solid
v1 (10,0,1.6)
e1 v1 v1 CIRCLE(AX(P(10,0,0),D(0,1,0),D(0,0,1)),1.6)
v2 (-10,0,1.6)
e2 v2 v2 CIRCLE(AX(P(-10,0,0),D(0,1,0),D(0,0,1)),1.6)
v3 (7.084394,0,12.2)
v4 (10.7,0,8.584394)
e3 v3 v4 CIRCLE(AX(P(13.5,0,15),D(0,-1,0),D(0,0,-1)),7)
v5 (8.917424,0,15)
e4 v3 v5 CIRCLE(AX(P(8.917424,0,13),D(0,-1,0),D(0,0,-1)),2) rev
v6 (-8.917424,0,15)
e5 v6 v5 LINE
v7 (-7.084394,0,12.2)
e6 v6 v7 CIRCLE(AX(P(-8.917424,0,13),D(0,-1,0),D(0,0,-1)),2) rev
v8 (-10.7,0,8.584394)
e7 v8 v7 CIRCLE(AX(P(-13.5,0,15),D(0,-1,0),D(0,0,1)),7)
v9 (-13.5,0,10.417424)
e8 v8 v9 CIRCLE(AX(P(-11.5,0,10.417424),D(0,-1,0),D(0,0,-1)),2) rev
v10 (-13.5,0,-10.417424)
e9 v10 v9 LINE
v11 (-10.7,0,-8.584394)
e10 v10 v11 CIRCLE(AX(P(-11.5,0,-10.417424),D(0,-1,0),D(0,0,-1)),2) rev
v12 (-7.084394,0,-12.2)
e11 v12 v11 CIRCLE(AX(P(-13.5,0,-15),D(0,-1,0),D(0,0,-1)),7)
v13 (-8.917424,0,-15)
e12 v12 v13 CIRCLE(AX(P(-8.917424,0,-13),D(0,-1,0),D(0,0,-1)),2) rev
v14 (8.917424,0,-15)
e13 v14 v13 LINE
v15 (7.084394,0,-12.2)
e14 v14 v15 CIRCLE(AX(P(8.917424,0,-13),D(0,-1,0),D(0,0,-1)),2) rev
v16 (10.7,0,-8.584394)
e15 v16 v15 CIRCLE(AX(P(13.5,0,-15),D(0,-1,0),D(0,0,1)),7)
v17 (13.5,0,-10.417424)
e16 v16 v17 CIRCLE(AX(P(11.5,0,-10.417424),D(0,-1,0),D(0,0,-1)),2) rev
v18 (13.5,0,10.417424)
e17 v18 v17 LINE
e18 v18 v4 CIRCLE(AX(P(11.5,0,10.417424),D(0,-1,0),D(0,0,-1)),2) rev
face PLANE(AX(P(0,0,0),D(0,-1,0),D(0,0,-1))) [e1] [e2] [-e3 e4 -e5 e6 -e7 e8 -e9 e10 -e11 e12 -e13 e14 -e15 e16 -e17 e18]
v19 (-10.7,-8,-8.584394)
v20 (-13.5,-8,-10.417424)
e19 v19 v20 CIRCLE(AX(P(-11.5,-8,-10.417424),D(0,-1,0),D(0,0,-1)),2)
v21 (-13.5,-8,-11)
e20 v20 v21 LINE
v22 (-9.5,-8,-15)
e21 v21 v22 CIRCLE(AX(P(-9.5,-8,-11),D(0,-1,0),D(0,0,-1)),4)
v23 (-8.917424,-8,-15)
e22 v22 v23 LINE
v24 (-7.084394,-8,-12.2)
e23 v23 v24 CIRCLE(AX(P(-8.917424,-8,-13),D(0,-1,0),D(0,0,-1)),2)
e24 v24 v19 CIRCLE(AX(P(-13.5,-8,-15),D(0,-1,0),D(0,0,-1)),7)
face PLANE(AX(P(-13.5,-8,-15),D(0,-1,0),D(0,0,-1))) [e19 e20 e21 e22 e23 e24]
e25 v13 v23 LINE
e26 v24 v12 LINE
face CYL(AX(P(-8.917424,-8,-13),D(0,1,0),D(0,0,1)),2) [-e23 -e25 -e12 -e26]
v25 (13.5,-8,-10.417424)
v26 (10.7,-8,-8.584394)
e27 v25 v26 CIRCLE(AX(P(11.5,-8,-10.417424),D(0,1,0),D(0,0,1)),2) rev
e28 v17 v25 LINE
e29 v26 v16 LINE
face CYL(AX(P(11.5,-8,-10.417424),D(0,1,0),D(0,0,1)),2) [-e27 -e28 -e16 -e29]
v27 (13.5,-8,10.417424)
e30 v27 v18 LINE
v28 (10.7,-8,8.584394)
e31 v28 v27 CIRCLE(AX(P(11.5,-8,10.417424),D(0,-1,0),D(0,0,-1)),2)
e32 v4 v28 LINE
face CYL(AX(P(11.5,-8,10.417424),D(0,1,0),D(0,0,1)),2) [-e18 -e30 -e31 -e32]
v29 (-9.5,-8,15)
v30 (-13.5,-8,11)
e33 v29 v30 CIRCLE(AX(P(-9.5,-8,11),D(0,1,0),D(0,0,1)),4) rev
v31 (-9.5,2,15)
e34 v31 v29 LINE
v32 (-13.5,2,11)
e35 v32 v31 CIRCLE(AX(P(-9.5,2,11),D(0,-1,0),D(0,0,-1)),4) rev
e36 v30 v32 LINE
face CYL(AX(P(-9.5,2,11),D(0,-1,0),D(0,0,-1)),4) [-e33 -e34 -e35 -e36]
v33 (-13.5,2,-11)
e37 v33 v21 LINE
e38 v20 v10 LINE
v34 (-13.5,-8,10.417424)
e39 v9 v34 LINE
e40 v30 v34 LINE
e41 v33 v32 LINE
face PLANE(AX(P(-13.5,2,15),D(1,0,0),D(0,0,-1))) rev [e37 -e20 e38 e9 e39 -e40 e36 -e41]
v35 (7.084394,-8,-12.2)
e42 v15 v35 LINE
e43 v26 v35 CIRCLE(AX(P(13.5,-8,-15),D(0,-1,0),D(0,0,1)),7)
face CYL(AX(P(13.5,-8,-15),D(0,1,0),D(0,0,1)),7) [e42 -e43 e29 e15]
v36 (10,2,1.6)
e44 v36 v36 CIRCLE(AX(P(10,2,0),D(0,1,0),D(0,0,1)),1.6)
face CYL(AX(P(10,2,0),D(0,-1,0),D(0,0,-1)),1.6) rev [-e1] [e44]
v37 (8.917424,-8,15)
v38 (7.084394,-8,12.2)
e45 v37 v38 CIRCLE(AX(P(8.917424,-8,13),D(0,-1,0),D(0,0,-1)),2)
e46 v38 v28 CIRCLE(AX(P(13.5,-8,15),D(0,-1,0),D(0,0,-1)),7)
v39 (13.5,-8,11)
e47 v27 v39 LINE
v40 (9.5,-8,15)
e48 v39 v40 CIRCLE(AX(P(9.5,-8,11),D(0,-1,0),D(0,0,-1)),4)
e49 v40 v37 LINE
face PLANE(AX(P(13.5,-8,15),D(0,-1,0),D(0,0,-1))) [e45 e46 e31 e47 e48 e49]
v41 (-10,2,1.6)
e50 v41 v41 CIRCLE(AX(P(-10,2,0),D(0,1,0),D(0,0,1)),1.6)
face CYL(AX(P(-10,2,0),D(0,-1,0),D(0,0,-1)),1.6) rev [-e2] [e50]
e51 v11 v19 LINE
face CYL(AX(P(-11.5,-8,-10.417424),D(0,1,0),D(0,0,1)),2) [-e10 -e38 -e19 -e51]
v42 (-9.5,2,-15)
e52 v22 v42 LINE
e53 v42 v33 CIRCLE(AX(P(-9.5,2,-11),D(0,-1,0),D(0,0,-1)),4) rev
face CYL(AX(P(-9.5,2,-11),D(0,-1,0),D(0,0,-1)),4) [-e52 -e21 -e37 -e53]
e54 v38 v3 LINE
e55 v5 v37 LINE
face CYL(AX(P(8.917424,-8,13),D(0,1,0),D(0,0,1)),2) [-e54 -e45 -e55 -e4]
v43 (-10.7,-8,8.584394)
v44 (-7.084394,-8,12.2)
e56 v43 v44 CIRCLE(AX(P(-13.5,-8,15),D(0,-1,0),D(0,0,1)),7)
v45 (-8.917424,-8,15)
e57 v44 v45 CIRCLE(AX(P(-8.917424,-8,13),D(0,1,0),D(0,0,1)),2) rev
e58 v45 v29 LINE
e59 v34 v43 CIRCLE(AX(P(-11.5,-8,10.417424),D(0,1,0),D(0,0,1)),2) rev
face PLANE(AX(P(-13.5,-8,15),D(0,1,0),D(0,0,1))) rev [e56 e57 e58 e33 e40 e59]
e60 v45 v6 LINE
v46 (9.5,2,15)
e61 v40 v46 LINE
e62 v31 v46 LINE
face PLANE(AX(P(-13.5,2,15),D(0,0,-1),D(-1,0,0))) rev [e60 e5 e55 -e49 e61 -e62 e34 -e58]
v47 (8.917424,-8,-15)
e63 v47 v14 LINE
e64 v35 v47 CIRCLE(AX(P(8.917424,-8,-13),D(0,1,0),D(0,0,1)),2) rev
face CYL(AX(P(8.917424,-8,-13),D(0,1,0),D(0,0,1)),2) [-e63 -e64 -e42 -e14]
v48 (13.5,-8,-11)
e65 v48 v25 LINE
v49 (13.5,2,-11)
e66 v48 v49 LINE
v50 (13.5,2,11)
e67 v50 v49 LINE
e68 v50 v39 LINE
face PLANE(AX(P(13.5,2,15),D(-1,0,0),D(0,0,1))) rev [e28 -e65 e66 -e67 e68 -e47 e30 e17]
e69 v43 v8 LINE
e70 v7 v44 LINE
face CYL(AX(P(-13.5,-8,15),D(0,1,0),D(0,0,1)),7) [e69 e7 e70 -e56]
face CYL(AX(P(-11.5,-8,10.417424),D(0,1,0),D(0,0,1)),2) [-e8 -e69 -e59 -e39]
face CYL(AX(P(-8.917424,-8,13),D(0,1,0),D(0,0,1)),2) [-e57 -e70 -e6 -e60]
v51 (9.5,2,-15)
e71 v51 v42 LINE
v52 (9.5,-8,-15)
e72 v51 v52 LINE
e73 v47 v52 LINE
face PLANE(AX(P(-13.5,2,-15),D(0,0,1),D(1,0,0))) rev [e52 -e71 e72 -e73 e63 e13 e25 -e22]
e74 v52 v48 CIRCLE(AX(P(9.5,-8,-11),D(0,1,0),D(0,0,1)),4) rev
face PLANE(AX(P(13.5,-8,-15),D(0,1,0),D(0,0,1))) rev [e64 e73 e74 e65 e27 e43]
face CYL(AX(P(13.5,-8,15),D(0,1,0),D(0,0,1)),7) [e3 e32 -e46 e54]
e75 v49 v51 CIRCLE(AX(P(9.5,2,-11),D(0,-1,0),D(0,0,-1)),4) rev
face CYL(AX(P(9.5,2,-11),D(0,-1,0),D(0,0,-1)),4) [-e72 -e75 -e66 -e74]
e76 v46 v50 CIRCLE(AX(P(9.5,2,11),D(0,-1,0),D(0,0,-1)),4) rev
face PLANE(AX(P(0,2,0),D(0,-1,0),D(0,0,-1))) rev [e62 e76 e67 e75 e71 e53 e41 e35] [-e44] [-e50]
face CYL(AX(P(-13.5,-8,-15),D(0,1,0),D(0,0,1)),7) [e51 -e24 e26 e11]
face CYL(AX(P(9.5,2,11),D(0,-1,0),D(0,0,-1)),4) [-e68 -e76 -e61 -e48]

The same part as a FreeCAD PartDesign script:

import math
import FreeCAD as App
import Part
import Sketcher
from FreeCAD import Vector
Q = App.Units.Quantity


def edges_at(feature, points):
    """Names of the edges that pass closest to the given points."""
    edges = feature.Shape.Edges
    near = lambda p: min(range(len(edges)), key=lambda i: edges[i].distToShape(Part.Vertex(*p))[0])
    return sorted({f"Edge{near(p) + 1}" for p in points})

doc = App.newDocument("Part")
params = doc.addObject("Spreadsheet::Sheet", "Params")
for row, (alias, value) in enumerate([
    ("sketch1_diameter", "3.2 mm"),
    ("sketch1_width", "27 mm"),
    ("sketch1_height", "30 mm"),
    ("pad1_length", "2 mm"),
    ("sketch2_radius", "7 mm"),
    ("pad2_length", "8 mm"),
    ("fillet_radius", "4 mm"),
    ("fillet2_radius", "2 mm"),
], start=1):
    params.set(f"A{row}", alias)
    params.set(f"B{row}", "=" + value)
    params.setAlias(f"B{row}", alias)

body = doc.addObject("PartDesign::Body", "Body")

sketch1 = body.newObject("Sketcher::SketchObject", "Sketch")
sketch1.AttachmentSupport = (doc.getObject("XZ_Plane"), [""])
sketch1.MapMode = "FlatFace"
sketch1.addGeometry(Part.LineSegment(Vector(-13.5, -15, 0), Vector(-13.5, 15, 0)), False)
sketch1.addGeometry(Part.LineSegment(Vector(-13.5, 15, 0), Vector(13.5, 15, 0)), False)
sketch1.addGeometry(Part.LineSegment(Vector(13.5, 15, 0), Vector(13.5, -15, 0)), False)
sketch1.addGeometry(Part.LineSegment(Vector(13.5, -15, 0), Vector(-13.5, -15, 0)), False)
sketch1.addGeometry(Part.Circle(Vector(-10, 0, 0), Vector(0, 0, 1), 1.6), False)
sketch1.addGeometry(Part.Circle(Vector(10, 0, 0), Vector(0, 0, 1), 1.6), False)
sketch1.addConstraint(Sketcher.Constraint("Coincident", 0, 2, 1, 1))
sketch1.addConstraint(Sketcher.Constraint("Coincident", 1, 2, 2, 1))
sketch1.addConstraint(Sketcher.Constraint("Coincident", 2, 2, 3, 1))
sketch1.addConstraint(Sketcher.Constraint("Coincident", 3, 2, 0, 1))
sketch1.addConstraint(Sketcher.Constraint("Vertical", 0))
sketch1.addConstraint(Sketcher.Constraint("Horizontal", 1))
sketch1.addConstraint(Sketcher.Constraint("Vertical", 2))
sketch1.addConstraint(Sketcher.Constraint("Horizontal", 3))
sketch1.addConstraint(Sketcher.Constraint("Equal", 4, 5))
sketch1.addConstraint(Sketcher.Constraint("Symmetric", 4, 3, 5, 3, -1, 1))
sketch1.addConstraint(Sketcher.Constraint("Symmetric", 0, 2, 2, 2, -1, 1))
sketch1.addConstraint(Sketcher.Constraint("PointOnObject", 4, 3, -1))
sketch1.addConstraint(Sketcher.Constraint("Diameter", 4, Q("3.2 mm")))
sketch1.addConstraint(Sketcher.Constraint("DistanceX", 1, 1, 1, 2, Q("27 mm")))
sketch1.addConstraint(Sketcher.Constraint("DistanceY", 0, 1, 0, 2, Q("30 mm")))
sketch1.addConstraint(Sketcher.Constraint("DistanceX", 4, 3, -1, 1, Q("10 mm")))
sketch1.setExpression("Constraints[12]", "Params.sketch1_diameter")
sketch1.setExpression("Constraints[13]", "Params.sketch1_width")
sketch1.setExpression("Constraints[14]", "Params.sketch1_height")
pad1 = body.newObject("PartDesign::Pad", "Pad")
pad1.Profile = sketch1
pad1.setExpression("Length", "Params.pad1_length")
pad1.Reversed = True

sketch2 = body.newObject("Sketcher::SketchObject", "Sketch001")
sketch2.AttachmentSupport = (doc.getObject("XZ_Plane"), [""])
sketch2.MapMode = "FlatFace"
sketch2.addGeometry(Part.LineSegment(Vector(-14, 15, 0), Vector(-14, 8, 0)), False)
sketch2.addGeometry(Part.ArcOfCircle(Part.Circle(Vector(-14, 15, 0), Vector(0, 0, 1), 7), math.radians(-90), math.radians(0)), False)
sketch2.addGeometry(Part.LineSegment(Vector(-6, 15, 0), Vector(-14, 15, 0)), False)
sketch2.addGeometry(Part.LineSegment(Vector(14, 8, 0), Vector(14, 15, 0)), False)
sketch2.addGeometry(Part.LineSegment(Vector(14, 15, 0), Vector(6, 15, 0)), False)
sketch2.addGeometry(Part.ArcOfCircle(Part.Circle(Vector(14, 15, 0), Vector(0, 0, 1), 7), math.radians(-180), math.radians(-90)), False)
sketch2.addGeometry(Part.LineSegment(Vector(6, -15, 0), Vector(14, -15, 0)), False)
sketch2.addGeometry(Part.LineSegment(Vector(14, -15, 0), Vector(14, -8, 0)), False)
sketch2.addGeometry(Part.ArcOfCircle(Part.Circle(Vector(14, -15, 0), Vector(0, 0, 1), 7), math.radians(90), math.radians(180)), False)
sketch2.addGeometry(Part.LineSegment(Vector(-14, -8, 0), Vector(-14, -15, 0)), False)
sketch2.addGeometry(Part.LineSegment(Vector(-14, -15, 0), Vector(-6, -15, 0)), False)
sketch2.addGeometry(Part.ArcOfCircle(Part.Circle(Vector(-14, -15, 0), Vector(0, 0, 1), 7), math.radians(0), math.radians(90)), False)
sketch2.addConstraint(Sketcher.Constraint("Coincident", 0, 2, 1, 1))
sketch2.addConstraint(Sketcher.Constraint("Coincident", 1, 2, 2, 1))
sketch2.addConstraint(Sketcher.Constraint("Coincident", 2, 2, 0, 1))
sketch2.addConstraint(Sketcher.Constraint("Coincident", 3, 2, 4, 1))
sketch2.addConstraint(Sketcher.Constraint("Coincident", 4, 2, 5, 1))
sketch2.addConstraint(Sketcher.Constraint("Coincident", 5, 2, 3, 1))
sketch2.addConstraint(Sketcher.Constraint("Coincident", 6, 2, 7, 1))
sketch2.addConstraint(Sketcher.Constraint("Coincident", 7, 2, 8, 1))
sketch2.addConstraint(Sketcher.Constraint("Coincident", 8, 2, 6, 1))
sketch2.addConstraint(Sketcher.Constraint("Coincident", 9, 2, 10, 1))
sketch2.addConstraint(Sketcher.Constraint("Coincident", 10, 2, 11, 1))
sketch2.addConstraint(Sketcher.Constraint("Coincident", 11, 2, 9, 1))
sketch2.addConstraint(Sketcher.Constraint("Vertical", 0))
sketch2.addConstraint(Sketcher.Constraint("Horizontal", 2))
sketch2.addConstraint(Sketcher.Constraint("Vertical", 3))
sketch2.addConstraint(Sketcher.Constraint("Horizontal", 4))
sketch2.addConstraint(Sketcher.Constraint("Horizontal", 6))
sketch2.addConstraint(Sketcher.Constraint("Vertical", 7))
sketch2.addConstraint(Sketcher.Constraint("Vertical", 9))
sketch2.addConstraint(Sketcher.Constraint("Horizontal", 10))
sketch2.addConstraint(Sketcher.Constraint("Coincident", 2, 2, 1, 3))
sketch2.addConstraint(Sketcher.Constraint("Coincident", 3, 2, 5, 3))
sketch2.addConstraint(Sketcher.Constraint("Coincident", 6, 2, 8, 3))
sketch2.addConstraint(Sketcher.Constraint("Coincident", 9, 2, 11, 3))
sketch2.addConstraint(Sketcher.Constraint("Equal", 1, 5))
sketch2.addConstraint(Sketcher.Constraint("Equal", 5, 8))
sketch2.addConstraint(Sketcher.Constraint("Equal", 8, 11))
sketch2.addConstraint(Sketcher.Constraint("Symmetric", 1, 3, 8, 3, -1, 1))
sketch2.addConstraint(Sketcher.Constraint("Symmetric", 5, 3, 11, 3, -1, 1))
sketch2.addConstraint(Sketcher.Constraint("Symmetric", 1, 3, 5, 3, -2))
sketch2.addConstraint(Sketcher.Constraint("Radius", 1, Q("7 mm")))
sketch2.addConstraint(Sketcher.Constraint("DistanceY", -1, 1, 1, 3, Q("15 mm")))
sketch2.addConstraint(Sketcher.Constraint("DistanceX", 1, 3, 5, 3, Q("27 mm")))
sketch2.setExpression("Constraints[30]", "Params.sketch2_radius")
pad2 = body.newObject("PartDesign::Pad", "Pad001")
pad2.Profile = sketch2
pad2.setExpression("Length", "Params.pad2_length")
doc.recompute()

fillet = body.newObject("PartDesign::Fillet", "Fillet")
fillet.Base = (pad2, edges_at(pad2, [
    (13.5, -3, 15),
    (-13.5, -3, 15),
    (-13.5, -3, -15),
    (13.5, -3, -15),
]))
fillet.setExpression("Radius", "Params.fillet_radius")
doc.recompute()

fillet2 = body.newObject("PartDesign::Fillet", "Fillet001")
fillet2.Base = (fillet, edges_at(fillet, [
    (-6.5, -4, 15),
    (-13.5, -4, 8),
    (6.5, -4, 15),
    (13.5, -4, 8),
    (13.5, -4, -8),
    (6.5, -4, -15),
    (-6.5, -4, -15),
    (-13.5, -4, -8),
]))
fillet2.setExpression("Radius", "Params.fillet2_radius")

doc.recompute()
